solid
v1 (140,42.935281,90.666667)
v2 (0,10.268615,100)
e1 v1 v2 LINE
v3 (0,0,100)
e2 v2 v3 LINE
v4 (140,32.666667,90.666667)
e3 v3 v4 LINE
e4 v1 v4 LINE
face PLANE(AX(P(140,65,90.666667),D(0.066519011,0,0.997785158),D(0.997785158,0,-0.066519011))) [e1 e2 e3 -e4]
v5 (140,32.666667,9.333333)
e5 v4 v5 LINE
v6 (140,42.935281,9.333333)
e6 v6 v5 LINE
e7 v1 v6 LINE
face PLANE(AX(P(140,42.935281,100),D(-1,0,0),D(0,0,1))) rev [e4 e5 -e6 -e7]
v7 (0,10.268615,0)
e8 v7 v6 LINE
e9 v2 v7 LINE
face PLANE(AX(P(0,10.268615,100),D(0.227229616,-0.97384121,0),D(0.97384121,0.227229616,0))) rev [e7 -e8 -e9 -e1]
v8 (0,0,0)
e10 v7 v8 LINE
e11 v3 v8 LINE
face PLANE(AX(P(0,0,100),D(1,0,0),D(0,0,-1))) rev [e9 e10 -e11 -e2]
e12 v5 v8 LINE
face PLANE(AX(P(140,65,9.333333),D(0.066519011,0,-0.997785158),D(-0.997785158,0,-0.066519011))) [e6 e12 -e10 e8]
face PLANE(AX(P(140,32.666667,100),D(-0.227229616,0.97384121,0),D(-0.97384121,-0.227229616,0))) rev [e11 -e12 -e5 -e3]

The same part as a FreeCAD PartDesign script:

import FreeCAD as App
import Part
import Sketcher
from FreeCAD import Vector


def add_polygon(sketch, points):
    """Adds a closed chain of lines whose ends are joined by coincident constraints."""
    first, n = sketch.GeometryCount, len(points)
    for a, b in zip(points, points[1:] + points[:1]):
        sketch.addGeometry(Part.LineSegment(App.Vector(*a, 0), App.Vector(*b, 0)), False)
    for i in range(n):
        sketch.addConstraint(Sketcher.Constraint("Coincident", first + i, 2, first + (i + 1) % n, 1))

doc = App.newDocument("Part")
body = doc.addObject("PartDesign::Body", "Body")

sketch1 = body.newObject("Sketcher::SketchObject", "Sketch")
sketch1.AttachmentSupport = (doc.getObject("XY_Plane"), [""])
sketch1.MapMode = "FlatFace"
add_polygon(sketch1, [(140, 33), (140, 43), (0, 10), (0, 0)])
sketch1.addConstraint([
    Sketcher.Constraint("Vertical", 0),
    Sketcher.Constraint("Vertical", 2),
    Sketcher.Constraint("Coincident", 2, 2, -1, 1),
    Sketcher.Constraint("Parallel", 1, 3),
    Sketcher.Constraint("DistanceX", -1, 1, 0, 2, 140.0),
    Sketcher.Constraint("DistanceY", 0, 1, 0, 2, 10.268615),
    Sketcher.Constraint("DistanceY", -1, 1, 0, 2, 42.935281),
])
pad1 = body.newObject("PartDesign::Pad", "Pad")
pad1.Profile = sketch1
pad1.Length = 100

sketch2 = body.newObject("Sketcher::SketchObject", "Sketch001")
sketch2.AttachmentSupport = (doc.getObject("XZ_Plane"), [""])
sketch2.MapMode = "FlatFace"
add_polygon(sketch2, [(140, 0), (0, 0), (140, 9)])
add_polygon(sketch2, [(140, 91), (0, 100), (140, 100)])
sketch2.addConstraint([
    Sketcher.Constraint("Horizontal", 0),
    Sketcher.Constraint("Vertical", 2),
    Sketcher.Constraint("Horizontal", 4),
    Sketcher.Constraint("Vertical", 5),
    Sketcher.Constraint("Coincident", 0, 2, -1, 1),
    Sketcher.Constraint("PointOnObject", 3, 2, -2),
    Sketcher.Constraint("Vertical", 2, 2, 4, 2),
    Sketcher.Constraint("Equal", 2, 5),
    Sketcher.Constraint("DistanceX", 0, 2, 0, 1, 140.0),
    Sketcher.Constraint("DistanceY", -1, 1, 3, 2, 100.0),
    Sketcher.Constraint("DistanceY", 2, 2, 2, 1, 9.333333),
])
pocket1 = body.newObject("PartDesign::Pocket", "Pocket")
pocket1.Profile = sketch2
pocket1.Length = 65

doc.recompute()
